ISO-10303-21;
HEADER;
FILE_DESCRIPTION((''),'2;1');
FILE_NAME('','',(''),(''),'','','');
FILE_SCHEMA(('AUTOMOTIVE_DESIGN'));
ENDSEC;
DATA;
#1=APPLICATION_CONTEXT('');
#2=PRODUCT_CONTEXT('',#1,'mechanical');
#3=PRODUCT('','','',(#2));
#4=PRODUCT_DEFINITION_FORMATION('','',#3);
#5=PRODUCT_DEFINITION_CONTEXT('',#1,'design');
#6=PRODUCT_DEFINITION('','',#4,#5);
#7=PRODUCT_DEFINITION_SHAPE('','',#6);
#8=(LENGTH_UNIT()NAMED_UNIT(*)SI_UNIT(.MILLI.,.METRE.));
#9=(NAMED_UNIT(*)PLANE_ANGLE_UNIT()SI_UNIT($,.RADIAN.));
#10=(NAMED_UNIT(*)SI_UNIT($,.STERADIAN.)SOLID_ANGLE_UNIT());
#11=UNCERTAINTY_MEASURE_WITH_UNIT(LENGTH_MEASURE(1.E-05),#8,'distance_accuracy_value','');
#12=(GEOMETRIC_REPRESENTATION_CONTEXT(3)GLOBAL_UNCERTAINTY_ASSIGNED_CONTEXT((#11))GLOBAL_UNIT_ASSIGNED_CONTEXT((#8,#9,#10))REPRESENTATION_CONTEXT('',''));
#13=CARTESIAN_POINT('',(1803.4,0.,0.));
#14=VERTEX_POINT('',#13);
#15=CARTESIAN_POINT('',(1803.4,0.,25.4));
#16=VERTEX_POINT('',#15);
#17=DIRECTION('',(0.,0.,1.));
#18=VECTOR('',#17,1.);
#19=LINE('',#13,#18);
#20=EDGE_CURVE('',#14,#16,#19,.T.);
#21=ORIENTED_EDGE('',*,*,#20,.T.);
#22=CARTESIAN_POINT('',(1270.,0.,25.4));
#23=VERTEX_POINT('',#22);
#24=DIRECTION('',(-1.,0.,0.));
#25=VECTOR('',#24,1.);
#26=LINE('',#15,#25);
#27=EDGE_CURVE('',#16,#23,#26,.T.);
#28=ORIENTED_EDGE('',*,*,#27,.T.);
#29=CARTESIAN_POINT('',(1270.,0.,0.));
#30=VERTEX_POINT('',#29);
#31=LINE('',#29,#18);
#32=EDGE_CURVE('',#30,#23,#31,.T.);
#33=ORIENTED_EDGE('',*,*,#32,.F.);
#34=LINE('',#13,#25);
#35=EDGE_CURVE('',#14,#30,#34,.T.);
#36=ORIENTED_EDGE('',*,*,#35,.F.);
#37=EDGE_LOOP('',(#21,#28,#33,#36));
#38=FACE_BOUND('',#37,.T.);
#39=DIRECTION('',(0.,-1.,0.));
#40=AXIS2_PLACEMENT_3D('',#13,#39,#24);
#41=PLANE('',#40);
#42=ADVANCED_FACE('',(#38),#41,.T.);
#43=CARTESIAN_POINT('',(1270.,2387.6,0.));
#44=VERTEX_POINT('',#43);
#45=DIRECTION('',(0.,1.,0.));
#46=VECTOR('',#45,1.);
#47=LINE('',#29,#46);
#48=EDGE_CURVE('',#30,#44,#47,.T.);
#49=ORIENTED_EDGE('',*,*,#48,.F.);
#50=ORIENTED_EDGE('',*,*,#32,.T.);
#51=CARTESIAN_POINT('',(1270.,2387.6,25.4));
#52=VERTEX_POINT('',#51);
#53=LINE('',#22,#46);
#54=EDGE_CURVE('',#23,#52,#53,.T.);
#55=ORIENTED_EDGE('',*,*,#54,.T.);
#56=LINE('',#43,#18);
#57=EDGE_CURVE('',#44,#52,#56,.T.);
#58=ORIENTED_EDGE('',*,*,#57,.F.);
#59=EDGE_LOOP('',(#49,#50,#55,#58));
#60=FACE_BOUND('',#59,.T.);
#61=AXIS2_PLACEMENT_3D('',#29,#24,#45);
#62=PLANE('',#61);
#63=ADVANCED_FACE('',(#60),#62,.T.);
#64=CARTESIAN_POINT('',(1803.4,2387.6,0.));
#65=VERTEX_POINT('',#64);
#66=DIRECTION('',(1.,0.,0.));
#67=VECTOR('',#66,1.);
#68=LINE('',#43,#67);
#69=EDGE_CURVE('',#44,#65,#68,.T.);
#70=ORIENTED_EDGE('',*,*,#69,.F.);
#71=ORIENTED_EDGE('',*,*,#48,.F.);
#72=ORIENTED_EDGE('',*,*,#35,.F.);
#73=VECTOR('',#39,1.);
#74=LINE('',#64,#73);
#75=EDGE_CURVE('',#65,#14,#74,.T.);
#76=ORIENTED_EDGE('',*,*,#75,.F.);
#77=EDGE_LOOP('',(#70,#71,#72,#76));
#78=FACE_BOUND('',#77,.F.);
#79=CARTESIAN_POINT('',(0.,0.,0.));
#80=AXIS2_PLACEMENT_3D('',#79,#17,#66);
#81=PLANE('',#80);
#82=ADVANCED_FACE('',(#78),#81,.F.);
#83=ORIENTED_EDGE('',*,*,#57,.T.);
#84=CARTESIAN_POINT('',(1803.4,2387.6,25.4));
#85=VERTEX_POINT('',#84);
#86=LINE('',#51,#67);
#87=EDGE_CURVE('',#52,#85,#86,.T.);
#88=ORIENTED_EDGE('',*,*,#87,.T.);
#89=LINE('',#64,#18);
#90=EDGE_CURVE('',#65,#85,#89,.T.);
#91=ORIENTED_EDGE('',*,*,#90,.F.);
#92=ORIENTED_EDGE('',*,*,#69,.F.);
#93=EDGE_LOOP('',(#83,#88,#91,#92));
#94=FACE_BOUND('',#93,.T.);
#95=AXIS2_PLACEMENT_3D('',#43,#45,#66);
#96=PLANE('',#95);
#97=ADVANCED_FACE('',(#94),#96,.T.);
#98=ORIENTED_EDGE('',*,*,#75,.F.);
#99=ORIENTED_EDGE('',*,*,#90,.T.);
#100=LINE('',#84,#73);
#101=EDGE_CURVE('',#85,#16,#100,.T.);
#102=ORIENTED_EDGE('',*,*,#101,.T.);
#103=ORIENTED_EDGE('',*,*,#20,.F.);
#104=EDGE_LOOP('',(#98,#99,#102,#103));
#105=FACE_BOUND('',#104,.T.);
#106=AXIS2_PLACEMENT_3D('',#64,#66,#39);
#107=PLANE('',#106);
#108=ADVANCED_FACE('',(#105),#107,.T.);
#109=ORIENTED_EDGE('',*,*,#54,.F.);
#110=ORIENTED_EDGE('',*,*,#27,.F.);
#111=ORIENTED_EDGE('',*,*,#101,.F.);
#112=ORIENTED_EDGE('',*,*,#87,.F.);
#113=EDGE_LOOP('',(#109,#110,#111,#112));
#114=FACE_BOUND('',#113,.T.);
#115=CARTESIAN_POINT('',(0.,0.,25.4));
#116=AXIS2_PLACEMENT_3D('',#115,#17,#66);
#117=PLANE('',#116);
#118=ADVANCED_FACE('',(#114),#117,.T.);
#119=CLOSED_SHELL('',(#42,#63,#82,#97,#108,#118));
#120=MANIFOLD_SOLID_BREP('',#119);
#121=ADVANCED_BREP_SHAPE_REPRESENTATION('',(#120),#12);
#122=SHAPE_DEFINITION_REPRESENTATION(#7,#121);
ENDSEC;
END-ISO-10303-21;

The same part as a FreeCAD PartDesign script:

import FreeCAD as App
import Part
import Sketcher
from FreeCAD import Vector
Q = App.Units.Quantity


def add_polygon(sketch, points):
    """Adds a closed chain of lines whose ends are joined by coincident constraints."""
    first, n = sketch.GeometryCount, len(points)
    for a, b in zip(points, points[1:] + points[:1]):
        sketch.addGeometry(Part.LineSegment(App.Vector(*a, 0), App.Vector(*b, 0)), False)
    for i in range(n):
        sketch.addConstraint(Sketcher.Constraint("Coincident", first + i, 2, first + (i + 1) % n, 1))

doc = App.newDocument("Part")
body = doc.addObject("PartDesign::Body", "Body")

# Sketch on XY plane
sketch1 = body.newObject("Sketcher::SketchObject", "Sketch")
sketch1.AttachmentSupport = (doc.getObject("XY_Plane"), [""])
sketch1.MapMode = "FlatFace"
add_polygon(sketch1, [(1803, 0), (1803, 2388), (1270, 2388), (1270, 0)])  # lines 0-3
sketch1.addConstraint(Sketcher.Constraint("Vertical", 0))
sketch1.addConstraint(Sketcher.Constraint("Horizontal", 1))
sketch1.addConstraint(Sketcher.Constraint("Vertical", 2))
sketch1.addConstraint(Sketcher.Constraint("Horizontal", 3))
sketch1.addConstraint(Sketcher.Constraint("PointOnObject", 2, 2, -1))
sketch1.addConstraint(Sketcher.Constraint("DistanceX", 1, 2, 1, 1, Q("21 in")))
sketch1.addConstraint(Sketcher.Constraint("DistanceY", 0, 1, 0, 2, Q("94 in")))
sketch1.addConstraint(Sketcher.Constraint("DistanceX", -1, 1, 0, 2, Q("71 in")))
pad1 = body.newObject("PartDesign::Pad", "Pad")
pad1.Profile = sketch1
pad1.Length = Q("1 in")

doc.recompute()
